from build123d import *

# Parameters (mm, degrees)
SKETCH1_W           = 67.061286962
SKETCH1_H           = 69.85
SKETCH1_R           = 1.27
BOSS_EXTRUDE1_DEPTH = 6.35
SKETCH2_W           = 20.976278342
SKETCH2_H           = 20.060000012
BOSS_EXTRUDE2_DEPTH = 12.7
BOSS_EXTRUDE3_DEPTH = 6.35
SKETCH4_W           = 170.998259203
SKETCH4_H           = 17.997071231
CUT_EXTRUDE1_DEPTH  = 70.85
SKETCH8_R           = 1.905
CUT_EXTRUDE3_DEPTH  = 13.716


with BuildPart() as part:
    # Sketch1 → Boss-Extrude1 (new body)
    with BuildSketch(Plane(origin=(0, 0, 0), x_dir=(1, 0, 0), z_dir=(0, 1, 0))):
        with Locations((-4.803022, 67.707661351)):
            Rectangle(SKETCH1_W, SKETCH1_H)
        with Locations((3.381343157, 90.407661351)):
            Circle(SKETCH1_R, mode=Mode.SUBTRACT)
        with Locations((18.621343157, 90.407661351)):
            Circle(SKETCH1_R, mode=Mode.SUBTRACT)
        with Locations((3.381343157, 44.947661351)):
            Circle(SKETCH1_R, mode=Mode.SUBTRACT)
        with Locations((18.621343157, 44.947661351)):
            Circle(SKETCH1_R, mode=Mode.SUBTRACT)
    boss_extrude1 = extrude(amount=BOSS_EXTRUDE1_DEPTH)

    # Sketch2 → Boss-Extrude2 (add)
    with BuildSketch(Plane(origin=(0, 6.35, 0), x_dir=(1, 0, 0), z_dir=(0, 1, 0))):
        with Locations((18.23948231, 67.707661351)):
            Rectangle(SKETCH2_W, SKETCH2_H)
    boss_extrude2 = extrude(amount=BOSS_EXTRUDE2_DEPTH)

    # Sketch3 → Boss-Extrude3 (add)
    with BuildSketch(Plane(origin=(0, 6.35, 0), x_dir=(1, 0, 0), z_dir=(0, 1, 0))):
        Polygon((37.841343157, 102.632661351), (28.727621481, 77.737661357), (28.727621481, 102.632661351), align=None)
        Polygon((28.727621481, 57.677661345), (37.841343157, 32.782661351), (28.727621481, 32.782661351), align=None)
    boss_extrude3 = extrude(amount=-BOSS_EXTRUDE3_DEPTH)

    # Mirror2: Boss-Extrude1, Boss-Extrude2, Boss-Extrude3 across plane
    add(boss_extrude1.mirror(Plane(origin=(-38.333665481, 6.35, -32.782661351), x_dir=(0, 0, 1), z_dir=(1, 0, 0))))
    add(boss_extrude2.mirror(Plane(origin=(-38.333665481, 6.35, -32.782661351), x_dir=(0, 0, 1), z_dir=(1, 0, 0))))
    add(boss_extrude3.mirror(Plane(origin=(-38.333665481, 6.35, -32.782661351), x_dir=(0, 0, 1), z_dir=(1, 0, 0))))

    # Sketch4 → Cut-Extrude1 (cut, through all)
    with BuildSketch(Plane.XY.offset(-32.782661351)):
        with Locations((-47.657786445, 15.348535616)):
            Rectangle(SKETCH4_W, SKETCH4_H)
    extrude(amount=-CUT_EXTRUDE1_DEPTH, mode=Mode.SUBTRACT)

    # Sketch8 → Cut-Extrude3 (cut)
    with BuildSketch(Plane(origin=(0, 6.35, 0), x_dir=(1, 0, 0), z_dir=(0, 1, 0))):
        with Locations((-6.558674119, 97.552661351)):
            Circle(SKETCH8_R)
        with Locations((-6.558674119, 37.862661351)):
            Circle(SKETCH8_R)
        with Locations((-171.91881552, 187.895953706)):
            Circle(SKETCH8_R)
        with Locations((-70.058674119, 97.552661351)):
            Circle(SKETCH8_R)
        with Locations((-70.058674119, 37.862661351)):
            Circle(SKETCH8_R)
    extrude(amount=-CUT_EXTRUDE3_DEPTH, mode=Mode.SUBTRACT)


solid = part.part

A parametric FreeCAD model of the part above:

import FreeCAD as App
import Part
import Sketcher

V = App.Vector
Q = App.Units.Quantity


def add_polygon(sketch, points):
    """Adds a closed chain of lines whose ends are joined by coincident constraints."""
    first, n = sketch.GeometryCount, len(points)
    for a, b in zip(points, points[1:] + points[:1]):
        sketch.addGeometry(Part.LineSegment(App.Vector(*a, 0), App.Vector(*b, 0)), False)
    for i in range(n):
        sketch.addConstraint(Sketcher.Constraint("Coincident", first + i, 2, first + (i + 1) % n, 1))

doc = App.newDocument("Part")
params = doc.addObject("Spreadsheet::Sheet", "Params")
for row, (alias, value) in enumerate([
    ("sketch1_diameter", "0.1 in"),
    ("sketch1_height", "2.75 in"),
    ("pad1_length", "0.25 in"),
    ("pad2_length", "0.5 in"),
    ("pad3_length", "0.25 in"),
    ("sketch5_diameter", "0.15 in"),
    ("pocket2_length", "0.54 in"),
], start=1):
    params.set(f"A{row}", alias)
    params.set(f"B{row}", "=" + value)
    params.setAlias(f"B{row}", alias)

body = doc.addObject("PartDesign::Body", "Body")

sketch1 = body.newObject("Sketcher::SketchObject", "Sketch")
sketch1.AttachmentSupport = (doc.getObject("XZ_Plane"), [""])
sketch1.MapMode = "FlatFace"
add_polygon(sketch1, [(-38.3, -102.6), (-38.3, -32.8), (28.7, -32.8), (28.7, -102.6)])
sketch1.addGeometry(Part.Circle(V(3.4, -44.9, 0), V(0, 0, 1), 1.3), False)
sketch1.addGeometry(Part.Circle(V(18.6, -44.9, 0), V(0, 0, 1), 1.3), False)
sketch1.addGeometry(Part.Circle(V(3.4, -90.4, 0), V(0, 0, 1), 1.3), False)
sketch1.addGeometry(Part.Circle(V(18.6, -90.4, 0), V(0, 0, 1), 1.3), False)
sketch1.addConstraint([
    Sketcher.Constraint("Vertical", 0),
    Sketcher.Constraint("Horizontal", 1),
    Sketcher.Constraint("Vertical", 2),
    Sketcher.Constraint("Horizontal", 3),
    Sketcher.Constraint("Equal", 4, 5),
    Sketcher.Constraint("Equal", 5, 6),
    Sketcher.Constraint("Equal", 6, 7),
    Sketcher.Constraint("Horizontal", 4, 3, 5, 3),
    Sketcher.Constraint("Horizontal", 6, 3, 7, 3),
    Sketcher.Constraint("Vertical", 4, 3, 6, 3),
    Sketcher.Constraint("Vertical", 5, 3, 7, 3),
    Sketcher.Constraint("Diameter", 4, Q("0.1 in")),
    Sketcher.Constraint("DistanceY", 0, 1, 0, 2, Q("2.75 in")),
    Sketcher.Constraint("DistanceX", 4, 3, 5, 3, Q("0.6 in")),
    Sketcher.Constraint("DistanceY", 6, 3, 4, 3, Q("45.46 mm")),
    Sketcher.Constraint("DistanceY", 4, 3, 0, 2, Q("12.165 mm")),
    Sketcher.Constraint("DistanceX", 1, 1, 1, 2, Q("67.061287 mm")),
    Sketcher.Constraint("DistanceY", 4, 3, -1, 1, Q("44.947661 mm")),
    Sketcher.Constraint("DistanceX", -1, 1, 1, 2, Q("28.727621 mm")),
    Sketcher.Constraint("DistanceX", 0, 2, 4, 3, Q("41.715009 mm")),
])
sketch1.setExpression("Constraints[15]", "Params.sketch1_diameter")
sketch1.setExpression("Constraints[16]", "Params.sketch1_height")
pad1 = body.newObject("PartDesign::Pad", "Pad")
pad1.Profile = sketch1
pad1.setExpression("Length", "Params.pad1_length")
pad1.Reversed = True

sketch2 = body.newObject("Sketcher::SketchObject", "Sketch001")
sketch2.AttachmentSupport = (doc.getObject("XZ_Plane"), [""])
sketch2.MapMode = "FlatFace"
sketch2.AttachmentOffset = App.Placement(V(0, 0, -0.25 * 25.4), App.Rotation())
add_polygon(sketch2, [(8, -78), (8, -58), (29, -58), (29, -78)])
sketch2.addConstraint([
    Sketcher.Constraint("Vertical", 0),
    Sketcher.Constraint("Horizontal", 1),
    Sketcher.Constraint("Vertical", 2),
    Sketcher.Constraint("Horizontal", 3),
    Sketcher.Constraint("DistanceY", 0, 1, 0, 2, Q("20.06 mm")),
    Sketcher.Constraint("DistanceX", 1, 1, 1, 2, Q("20.976278 mm")),
    Sketcher.Constraint("DistanceY", 0, 2, -1, 1, Q("57.677661 mm")),
    Sketcher.Constraint("DistanceX", -1, 1, 1, 2, Q("28.727621 mm")),
])
pad2 = body.newObject("PartDesign::Pad", "Pad001")
pad2.Profile = sketch2
pad2.setExpression("Length", "Params.pad2_length")
pad2.Reversed = True

sketch3 = body.newObject("Sketcher::SketchObject", "Sketch002")
sketch3.AttachmentSupport = (doc.getObject("XZ_Plane"), [""])
sketch3.MapMode = "FlatFace"
sketch3.AttachmentOffset = App.Placement(V(0, 0, -0.25 * 25.4), App.Rotation())
add_polygon(sketch3, [(29, -78), (38, -103), (29, -103)])
add_polygon(sketch3, [(38, -33), (29, -58), (29, -33)])
sketch3.addConstraint([
    Sketcher.Constraint("Horizontal", 1),
    Sketcher.Constraint("Vertical", 2),
    Sketcher.Constraint("Vertical", 4),
    Sketcher.Constraint("Horizontal", 5),
    Sketcher.Constraint("Vertical", 2, 2, 3, 2),
    Sketcher.Constraint("Vertical", 0, 2, 5, 2),
    Sketcher.Constraint("Equal", 2, 4),
    Sketcher.Constraint("DistanceY", 1, 2, 4, 2, Q("2.75 in")),
    Sketcher.Constraint("DistanceY", 2, 1, 2, 2, Q("24.895 mm")),
    Sketcher.Constraint("DistanceX", 1, 2, 1, 1, Q("9.113722 mm")),
    Sketcher.Constraint("DistanceY", 0, 2, -1, 1, Q("102.632661 mm")),
    Sketcher.Constraint("DistanceX", -1, 1, 1, 2, Q("28.727621 mm")),
])
pad3 = body.newObject("PartDesign::Pad", "Pad002")
pad3.Profile = sketch3
pad3.setExpression("Length", "Params.pad3_length")
doc.recompute()

datumplane = body.newObject("PartDesign::Plane", "DatumPlane")
datumplane.AttachmentSupport = (doc.getObject("YZ_Plane"), [""])
datumplane.MapMode = "FlatFace"
datumplane.AttachmentOffset = App.Placement(V(0, 0, -38.333665), App.Rotation())
mirrored = body.newObject("PartDesign::Mirrored", "Mirrored")
mirrored.Originals = [pad1, pad2, pad3]
mirrored.MirrorPlane = (datumplane, [""])
body.Tip = mirrored

sketch4 = body.newObject("Sketcher::SketchObject", "Sketch003")
sketch4.AttachmentSupport = (doc.getObject("XY_Plane"), [""])
sketch4.MapMode = "FlatFace"
sketch4.AttachmentOffset = App.Placement(V(0, 0, -32.782661), App.Rotation())
add_polygon(sketch4, [(-133, 24), (-133, 6), (38, 6), (38, 24)])
sketch4.addConstraint([
    Sketcher.Constraint("Vertical", 0),
    Sketcher.Constraint("Horizontal", 1),
    Sketcher.Constraint("Vertical", 2),
    Sketcher.Constraint("Horizontal", 3),
    Sketcher.Constraint("DistanceY", -1, 1, 0, 2, Q("0.25 in")),
    Sketcher.Constraint("DistanceX", 1, 1, 1, 2, Q("170.998259 mm")),
    Sketcher.Constraint("DistanceY", 0, 2, 0, 1, Q("17.997071 mm")),
    Sketcher.Constraint("DistanceX", 0, 2, -1, 1, Q("133.156916 mm")),
])
pocket1 = body.newObject("PartDesign::Pocket", "Pocket")
pocket1.Profile = sketch4
pocket1.Type = "ThroughAll"

sketch5 = body.newObject("Sketcher::SketchObject", "Sketch004")
sketch5.AttachmentSupport = (doc.getObject("XZ_Plane"), [""])
sketch5.MapMode = "FlatFace"
sketch5.AttachmentOffset = App.Placement(V(0, 0, -0.25 * 25.4), App.Rotation())
sketch5.addGeometry([
    Part.Circle(V(-6.6, -97.6, 0), V(0, 0, 1), 1.9),
    Part.Circle(V(-6.6, -37.9, 0), V(0, 0, 1), 1.9),
    Part.Circle(V(-171.9, -187.9, 0), V(0, 0, 1), 1.9),
    Part.Circle(V(-70.1, -97.6, 0), V(0, 0, 1), 1.9),
    Part.Circle(V(-70.1, -37.9, 0), V(0, 0, 1), 1.9),
], False)
sketch5.addConstraint([
    Sketcher.Constraint("Equal", 0, 1),
    Sketcher.Constraint("Equal", 1, 2),
    Sketcher.Constraint("Equal", 2, 3),
    Sketcher.Constraint("Equal", 3, 4),
    Sketcher.Constraint("Horizontal", 0, 3, 3, 3),
    Sketcher.Constraint("Horizontal", 1, 3, 4, 3),
    Sketcher.Constraint("Vertical", 0, 3, 1, 3),
    Sketcher.Constraint("Vertical", 3, 3, 4, 3),
    Sketcher.Constraint("Diameter", 0, Q("0.15 in")),
    Sketcher.Constraint("DistanceX", 3, 3, 0, 3, Q("2.5 in")),
    Sketcher.Constraint("DistanceY", 0, 3, 1, 3, Q("2.35 in")),
    Sketcher.Constraint("DistanceY", 0, 3, -1, 1, Q("97.552661 mm")),
    Sketcher.Constraint("DistanceX", 2, 3, 0, 3, Q("165.360141 mm")),
    Sketcher.Constraint("DistanceX", 0, 3, -1, 1, Q("6.558674 mm")),
    Sketcher.Constraint("DistanceY", 2, 3, -1, 1, Q("187.895954 mm")),
])
sketch5.setExpression("Constraints[8]", "Params.sketch5_diameter")
pocket2 = body.newObject("PartDesign::Pocket", "Pocket001")
pocket2.Profile = sketch5
pocket2.setExpression("Length", "Params.pocket2_length")
pocket2.Reversed = True

doc.recompute()
